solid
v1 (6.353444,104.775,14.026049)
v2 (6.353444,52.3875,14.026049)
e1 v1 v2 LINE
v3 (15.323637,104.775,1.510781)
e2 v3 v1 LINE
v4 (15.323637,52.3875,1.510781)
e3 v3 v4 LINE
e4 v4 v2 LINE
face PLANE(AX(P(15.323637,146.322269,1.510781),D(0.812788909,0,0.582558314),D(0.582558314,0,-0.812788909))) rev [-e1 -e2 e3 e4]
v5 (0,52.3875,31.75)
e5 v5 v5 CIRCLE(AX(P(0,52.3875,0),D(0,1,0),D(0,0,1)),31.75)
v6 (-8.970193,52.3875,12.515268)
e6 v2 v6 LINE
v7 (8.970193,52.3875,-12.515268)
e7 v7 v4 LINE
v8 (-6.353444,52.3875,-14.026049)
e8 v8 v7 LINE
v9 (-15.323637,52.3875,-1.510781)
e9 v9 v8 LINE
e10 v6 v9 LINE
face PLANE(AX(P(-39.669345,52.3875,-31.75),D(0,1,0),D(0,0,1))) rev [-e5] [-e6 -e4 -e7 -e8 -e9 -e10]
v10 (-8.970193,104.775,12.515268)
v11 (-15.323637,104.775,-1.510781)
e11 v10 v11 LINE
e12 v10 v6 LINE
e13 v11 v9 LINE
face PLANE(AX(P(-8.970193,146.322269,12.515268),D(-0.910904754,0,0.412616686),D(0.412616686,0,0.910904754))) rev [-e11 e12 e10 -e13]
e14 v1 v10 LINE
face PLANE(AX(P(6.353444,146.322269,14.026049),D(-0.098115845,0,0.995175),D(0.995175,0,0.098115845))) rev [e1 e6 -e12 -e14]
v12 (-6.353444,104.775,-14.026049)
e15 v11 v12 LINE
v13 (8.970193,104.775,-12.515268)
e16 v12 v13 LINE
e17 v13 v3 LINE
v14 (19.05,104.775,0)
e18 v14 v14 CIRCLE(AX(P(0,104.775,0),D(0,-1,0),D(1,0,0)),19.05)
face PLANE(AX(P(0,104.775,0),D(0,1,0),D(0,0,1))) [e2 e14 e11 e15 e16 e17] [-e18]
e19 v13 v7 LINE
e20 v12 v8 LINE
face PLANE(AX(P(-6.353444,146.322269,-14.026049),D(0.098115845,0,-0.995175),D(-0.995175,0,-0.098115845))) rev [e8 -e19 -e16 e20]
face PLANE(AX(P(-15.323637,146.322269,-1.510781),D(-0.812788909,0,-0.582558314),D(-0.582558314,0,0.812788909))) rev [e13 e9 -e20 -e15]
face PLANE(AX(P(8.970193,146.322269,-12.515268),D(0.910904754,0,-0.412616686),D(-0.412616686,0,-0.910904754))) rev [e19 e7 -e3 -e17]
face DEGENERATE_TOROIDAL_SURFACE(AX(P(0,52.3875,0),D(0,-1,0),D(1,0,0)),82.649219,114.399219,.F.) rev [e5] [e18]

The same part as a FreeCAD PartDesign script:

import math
import FreeCAD as App
import Part
import Sketcher

V = App.Vector
Q = App.Units.Quantity

doc = App.newDocument("Part")
body = doc.addObject("PartDesign::Body", "Body")

sketch1 = body.newObject("Sketcher::SketchObject", "Sketch")
sketch1.AttachmentSupport = (doc.getObject("XZ_Plane"), [""])
sketch1.MapMode = "FlatFace"
sketch1.addGeometry(Part.Circle(V(0, 0, 0), V(0, 0, 1), 19), False)
sketch1.addConstraint([
    Sketcher.Constraint("Coincident", 0, 3, -1, 1),
    Sketcher.Constraint("Diameter", 0, Q("1.5 in")),
])
pad1 = body.newObject("PartDesign::Pad", "Pad")
pad1.Profile = sketch1
pad1.Length = Q("4.125 in")
pad1.Reversed = True

sketch2 = body.newObject("Sketcher::SketchObject", "Sketch001")
sketch2.AttachmentSupport = (doc.getObject("XZ_Plane"), [""])
sketch2.MapMode = "FlatFace"
sketch2.addGeometry([
    Part.LineSegment(V(-15, -2, 0), V(-6, -14, 0)),
    Part.LineSegment(V(-6, -14, 0), V(9, -13, 0)),
    Part.LineSegment(V(9, -13, 0), V(15, 2, 0)),
    Part.LineSegment(V(15, 2, 0), V(6, 14, 0)),
    Part.LineSegment(V(6, 14, 0), V(-9, 13, 0)),
    Part.LineSegment(V(-9, 13, 0), V(-15, -2, 0)),
], False)
sketch2.addConstraint([
    Sketcher.Constraint("Coincident", 0, 2, 1, 1),
    Sketcher.Constraint("Coincident", 1, 2, 2, 1),
    Sketcher.Constraint("Coincident", 2, 2, 3, 1),
    Sketcher.Constraint("Coincident", 3, 2, 4, 1),
    Sketcher.Constraint("Coincident", 4, 2, 5, 1),
    Sketcher.Constraint("Coincident", 5, 2, 0, 1),
    Sketcher.Constraint("Symmetric", 0, 2, 3, 2, -1, 1),
    Sketcher.Constraint("Symmetric", 1, 2, 4, 2, -1, 1),
    Sketcher.Constraint("Symmetric", 2, 2, 5, 2, -1, 1),
    Sketcher.Constraint("Equal", 0, 1),
    Sketcher.Constraint("Equal", 1, 2),
    Sketcher.Constraint("DistanceY", 0, 2, 3, 2, 28.052098),
    Sketcher.Constraint("Distance", 0, 15.397932),
    Sketcher.Constraint("DistanceY", 1, 2, -1, 1, 12.515268),
    Sketcher.Constraint("DistanceY", -1, 1, 2, 2, 1.510781),
])
pocket1 = body.newObject("PartDesign::Pocket", "Pocket")
pocket1.Profile = sketch2
pocket1.Length = Q("4.125 in")

sketch3 = body.newObject("Sketcher::SketchObject", "Sketch002")
sketch3.AttachmentSupport = (doc.getObject("XY_Plane"), [""])
sketch3.MapMode = "FlatFace"
sketch3.addGeometry([
    Part.LineSegment(V(-19, 0, 0), V(-19, 105, 0)),
    Part.ArcOfCircle(Part.Circle(V(83, 52, 0), V(0, 0, 1), 114), math.radians(153), math.radians(207)),
], False)
sketch3.addConstraint([
    Sketcher.Constraint("Coincident", 0, 1, 1, 2),
    Sketcher.Constraint("Coincident", 1, 1, 0, 2),
    Sketcher.Constraint("Vertical", 0),
    Sketcher.Constraint("PointOnObject", 0, 1, -1),
    Sketcher.Constraint("DistanceY", 0, 1, 0, 2, Q("4.125 in")),
    Sketcher.Constraint("DistanceX", 0, 1, -1, 1, Q("0.75 in")),
    Sketcher.Constraint("Radius", 1, 114.399219),
])
revolution = body.newObject("PartDesign::Revolution", "Revolution")
revolution.Profile = sketch3
revolution.ReferenceAxis = (sketch3, ["V_Axis"])
revolution.Angle = 360

sketch4 = body.newObject("Sketcher::SketchObject", "Sketch003")
sketch4.AttachmentSupport = (doc.getObject("XY_Plane"), [""])
sketch4.MapMode = "FlatFace"
sketch4.addGeometry([
    Part.LineSegment(V(-40, 52, 0), V(-40, 0, 0)),
    Part.LineSegment(V(-40, 0, 0), V(39, 0, 0)),
    Part.LineSegment(V(39, 0, 0), V(39, 52, 0)),
    Part.LineSegment(V(39, 52, 0), V(-40, 52, 0)),
], False)
sketch4.addConstraint([
    Sketcher.Constraint("Coincident", 0, 2, 1, 1),
    Sketcher.Constraint("Coincident", 1, 2, 2, 1),
    Sketcher.Constraint("Coincident", 2, 2, 3, 1),
    Sketcher.Constraint("Coincident", 3, 2, 0, 1),
    Sketcher.Constraint("Vertical", 0),
    Sketcher.Constraint("Horizontal", 1),
    Sketcher.Constraint("Vertical", 2),
    Sketcher.Constraint("Horizontal", 3),
    Sketcher.Constraint("PointOnObject", 0, 2, -1),
    Sketcher.Constraint("DistanceY", 0, 2, 0, 1, Q("2.0625 in")),
    Sketcher.Constraint("DistanceX", 1, 1, 1, 2, 79.059329),
    Sketcher.Constraint("DistanceX", 0, 2, -1, 1, 39.669345),
])
pocket2 = body.newObject("PartDesign::Pocket", "Pocket001")
pocket2.Profile = sketch4
pocket2.Type = "ThroughAll"
pocket2.Midplane = True

doc.recompute()
